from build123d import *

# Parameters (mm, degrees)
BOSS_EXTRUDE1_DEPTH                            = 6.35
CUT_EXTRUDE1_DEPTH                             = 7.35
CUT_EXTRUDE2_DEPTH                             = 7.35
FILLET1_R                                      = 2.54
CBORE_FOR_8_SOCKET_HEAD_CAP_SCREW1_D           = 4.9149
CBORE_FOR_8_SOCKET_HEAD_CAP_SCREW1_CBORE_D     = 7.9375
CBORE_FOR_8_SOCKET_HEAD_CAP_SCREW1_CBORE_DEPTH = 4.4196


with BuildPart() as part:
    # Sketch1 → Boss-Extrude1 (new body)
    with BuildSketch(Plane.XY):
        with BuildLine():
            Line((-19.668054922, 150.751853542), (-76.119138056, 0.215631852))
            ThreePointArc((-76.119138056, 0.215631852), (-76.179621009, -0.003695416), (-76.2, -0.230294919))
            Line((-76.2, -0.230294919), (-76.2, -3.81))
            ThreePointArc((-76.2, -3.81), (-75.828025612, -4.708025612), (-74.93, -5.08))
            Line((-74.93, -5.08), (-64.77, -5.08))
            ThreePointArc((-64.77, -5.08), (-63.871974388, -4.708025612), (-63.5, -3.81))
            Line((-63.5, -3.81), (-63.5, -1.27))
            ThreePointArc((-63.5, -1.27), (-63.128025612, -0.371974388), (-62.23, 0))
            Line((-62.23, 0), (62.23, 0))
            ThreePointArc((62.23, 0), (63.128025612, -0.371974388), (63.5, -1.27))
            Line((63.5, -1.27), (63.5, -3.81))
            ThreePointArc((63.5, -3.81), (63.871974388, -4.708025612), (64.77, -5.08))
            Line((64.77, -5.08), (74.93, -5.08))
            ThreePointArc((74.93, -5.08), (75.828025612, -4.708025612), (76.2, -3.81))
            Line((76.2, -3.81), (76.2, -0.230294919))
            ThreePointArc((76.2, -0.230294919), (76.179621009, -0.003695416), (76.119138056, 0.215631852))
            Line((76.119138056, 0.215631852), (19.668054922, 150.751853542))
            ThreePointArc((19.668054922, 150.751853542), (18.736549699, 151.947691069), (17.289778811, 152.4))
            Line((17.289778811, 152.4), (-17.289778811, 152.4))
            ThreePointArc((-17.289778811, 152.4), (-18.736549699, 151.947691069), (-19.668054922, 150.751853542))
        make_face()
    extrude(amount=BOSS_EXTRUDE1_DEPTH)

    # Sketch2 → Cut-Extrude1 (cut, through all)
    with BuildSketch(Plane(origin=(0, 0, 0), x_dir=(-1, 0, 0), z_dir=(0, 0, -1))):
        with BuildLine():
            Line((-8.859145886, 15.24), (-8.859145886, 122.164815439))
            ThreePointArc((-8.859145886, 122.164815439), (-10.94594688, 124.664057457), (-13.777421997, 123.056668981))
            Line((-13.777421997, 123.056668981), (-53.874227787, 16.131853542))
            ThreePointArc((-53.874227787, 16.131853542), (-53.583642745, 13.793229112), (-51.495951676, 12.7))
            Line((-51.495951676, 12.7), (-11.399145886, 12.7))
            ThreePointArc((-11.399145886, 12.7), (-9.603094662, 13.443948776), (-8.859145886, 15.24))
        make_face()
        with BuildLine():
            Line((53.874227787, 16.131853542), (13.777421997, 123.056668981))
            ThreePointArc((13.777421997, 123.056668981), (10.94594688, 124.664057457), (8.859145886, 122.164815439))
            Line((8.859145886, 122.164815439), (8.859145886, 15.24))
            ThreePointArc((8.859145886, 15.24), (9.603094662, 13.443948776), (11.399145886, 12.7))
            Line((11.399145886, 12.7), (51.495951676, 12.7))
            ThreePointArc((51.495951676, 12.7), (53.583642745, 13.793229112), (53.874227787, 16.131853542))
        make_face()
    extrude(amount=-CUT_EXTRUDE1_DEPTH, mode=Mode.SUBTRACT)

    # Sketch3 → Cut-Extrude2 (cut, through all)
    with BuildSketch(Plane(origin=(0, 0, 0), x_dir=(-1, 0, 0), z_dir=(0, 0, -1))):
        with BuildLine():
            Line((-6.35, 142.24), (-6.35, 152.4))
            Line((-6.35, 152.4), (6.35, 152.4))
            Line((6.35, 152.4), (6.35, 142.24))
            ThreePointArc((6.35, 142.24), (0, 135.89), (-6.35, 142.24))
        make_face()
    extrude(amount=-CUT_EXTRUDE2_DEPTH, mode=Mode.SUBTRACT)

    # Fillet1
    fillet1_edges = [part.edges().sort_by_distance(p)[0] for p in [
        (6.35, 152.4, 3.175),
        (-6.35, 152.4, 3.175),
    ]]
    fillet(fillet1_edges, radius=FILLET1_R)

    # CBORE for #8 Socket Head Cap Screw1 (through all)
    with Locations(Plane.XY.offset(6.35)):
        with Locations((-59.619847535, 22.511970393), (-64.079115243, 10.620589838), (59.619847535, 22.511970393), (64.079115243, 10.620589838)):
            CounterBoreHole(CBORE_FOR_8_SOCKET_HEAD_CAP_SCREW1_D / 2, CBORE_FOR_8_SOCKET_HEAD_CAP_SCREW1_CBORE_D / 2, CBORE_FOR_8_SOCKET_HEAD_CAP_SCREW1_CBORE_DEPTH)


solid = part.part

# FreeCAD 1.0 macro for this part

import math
import FreeCAD as App
import Part
import Sketcher
Q = App.Units.Quantity


def edges_at(feature, points):
    """Names of the edges that pass closest to the given points."""
    edges = feature.Shape.Edges
    near = lambda p: min(range(len(edges)), key=lambda i: edges[i].distToShape(Part.Vertex(*p))[0])
    return sorted({f"Edge{near(p) + 1}" for p in points})

doc = App.newDocument("Part")
body = doc.addObject("PartDesign::Body", "Body")

# Sketch on XY plane
sketch1 = body.newObject("Sketcher::SketchObject", "Sketch")
sketch1.AttachmentSupport = (doc.getObject("XY_Plane"), [""])
sketch1.MapMode = "FlatFace"
sketch1.addGeometry([
    Part.LineSegment(App.Vector(-19.67, 150.75, 0), App.Vector(-76.12, 0.22, 0)),  # 0
    Part.ArcOfCircle(Part.Circle(App.Vector(-74.93, -0.23, 0), App.Vector(0, 0, 1), 1.27), math.radians(159), math.radians(180)),  # 1
    Part.LineSegment(App.Vector(-76.2, -0.23, 0), App.Vector(-76.2, -3.81, 0)),  # 2
    Part.ArcOfCircle(Part.Circle(App.Vector(-74.93, -3.81, 0), App.Vector(0, 0, 1), 1.27), math.radians(180), math.radians(270)),  # 3
    Part.LineSegment(App.Vector(-74.93, -5.08, 0), App.Vector(-64.77, -5.08, 0)),  # 4
    Part.ArcOfCircle(Part.Circle(App.Vector(-64.77, -3.81, 0), App.Vector(0, 0, 1), 1.27), math.radians(-90), math.radians(0)),  # 5
    Part.LineSegment(App.Vector(-63.5, -3.81, 0), App.Vector(-63.5, -1.27, 0)),  # 6
    Part.ArcOfCircle(Part.Circle(App.Vector(-62.23, -1.27, 0), App.Vector(0, 0, 1), 1.27), math.radians(90), math.radians(180)),  # 7
    Part.LineSegment(App.Vector(-62.23, 0, 0), App.Vector(62.23, 0, 0)),  # 8
    Part.ArcOfCircle(Part.Circle(App.Vector(62.23, -1.27, 0), App.Vector(0, 0, 1), 1.27), math.radians(0), math.radians(90)),  # 9
    Part.LineSegment(App.Vector(63.5, -1.27, 0), App.Vector(63.5, -3.81, 0)),  # 10
    Part.ArcOfCircle(Part.Circle(App.Vector(64.77, -3.81, 0), App.Vector(0, 0, 1), 1.27), math.radians(180), math.radians(270)),  # 11
    Part.LineSegment(App.Vector(64.77, -5.08, 0), App.Vector(74.93, -5.08, 0)),  # 12
    Part.ArcOfCircle(Part.Circle(App.Vector(74.93, -3.81, 0), App.Vector(0, 0, 1), 1.27), math.radians(-90), math.radians(0)),  # 13
    Part.LineSegment(App.Vector(76.2, -3.81, 0), App.Vector(76.2, -0.23, 0)),  # 14
    Part.ArcOfCircle(Part.Circle(App.Vector(74.93, -0.23, 0), App.Vector(0, 0, 1), 1.27), math.radians(0), math.radians(21)),  # 15
    Part.LineSegment(App.Vector(76.12, 0.22, 0), App.Vector(19.67, 150.75, 0)),  # 16
    Part.ArcOfCircle(Part.Circle(App.Vector(17.29, 149.86, 0), App.Vector(0, 0, 1), 2.54), math.radians(21), math.radians(90)),  # 17
    Part.LineSegment(App.Vector(17.29, 152.4, 0), App.Vector(-17.29, 152.4, 0)),  # 18
    Part.ArcOfCircle(Part.Circle(App.Vector(-17.29, 149.86, 0), App.Vector(0, 0, 1), 2.54), math.radians(90), math.radians(159)),  # 19
], False)
sketch1.addConstraint([
    Sketcher.Constraint("Tangent", 0, 2, 1, 1),
    Sketcher.Constraint("Tangent", 1, 2, 2, 1),
    Sketcher.Constraint("Tangent", 2, 2, 3, 1),
    Sketcher.Constraint("Tangent", 3, 2, 4, 1),
    Sketcher.Constraint("Tangent", 4, 2, 5, 1),
    Sketcher.Constraint("Tangent", 5, 2, 6, 1),
    Sketcher.Constraint("Tangent", 6, 2, 7, 2),
    Sketcher.Constraint("Tangent", 7, 1, 8, 1),
    Sketcher.Constraint("Tangent", 8, 2, 9, 2),
    Sketcher.Constraint("Tangent", 9, 1, 10, 1),
    Sketcher.Constraint("Tangent", 10, 2, 11, 1),
    Sketcher.Constraint("Tangent", 11, 2, 12, 1),
    Sketcher.Constraint("Tangent", 12, 2, 13, 1),
    Sketcher.Constraint("Tangent", 13, 2, 14, 1),
    Sketcher.Constraint("Tangent", 14, 2, 15, 1),
    Sketcher.Constraint("Tangent", 15, 2, 16, 1),
    Sketcher.Constraint("Tangent", 16, 2, 17, 1),
    Sketcher.Constraint("Tangent", 17, 2, 18, 1),
    Sketcher.Constraint("Tangent", 18, 2, 19, 1),
    Sketcher.Constraint("Tangent", 19, 2, 0, 1),
    Sketcher.Constraint("Vertical", 2),
    Sketcher.Constraint("Horizontal", 4),
    Sketcher.Constraint("Vertical", 6),
    Sketcher.Constraint("Horizontal", 8),
    Sketcher.Constraint("Vertical", 10),
    Sketcher.Constraint("Horizontal", 12),
    Sketcher.Constraint("Vertical", 14),
    Sketcher.Constraint("Horizontal", 18),
    Sketcher.Constraint("Equal", 1, 3),
    Sketcher.Constraint("Equal", 3, 5),
    Sketcher.Constraint("Equal", 5, 7),
    Sketcher.Constraint("Equal", 7, 9),
    Sketcher.Constraint("Equal", 9, 11),
    Sketcher.Constraint("Equal", 11, 13),
    Sketcher.Constraint("Equal", 13, 15),
    Sketcher.Constraint("Equal", 17, 19),
    Sketcher.Constraint("Symmetric", 7, 1, 8, 2, -1, 1),
    Sketcher.Constraint("Symmetric", 3, 3, 13, 3, -2),
    Sketcher.Constraint("Horizontal", 1, 3, 15, 3),
    Sketcher.Constraint("Horizontal", 0, 2, 15, 2),
    Sketcher.Constraint("Radius", 17, Q("0.1 in")),
    Sketcher.Constraint("Radius", 1, Q("0.05 in")),
    Sketcher.Constraint("DistanceX", 4, 1, 4, 2, Q("0.4 in")),
    Sketcher.Constraint("DistanceX", 8, 1, 8, 2, Q("4.9 in")),
    Sketcher.Constraint("DistanceY", 6, 1, 6, 2, Q("0.1 in")),
    Sketcher.Constraint("DistanceY", -1, 1, 17, 2, Q("6 in")),
    Sketcher.Constraint("DistanceX", 18, 2, 18, 1, Q("1.3613999 in")),
    Sketcher.Constraint("DistanceY", 2, 2, 2, 1, 3.579705),
])
pad1 = body.newObject("PartDesign::Pad", "Pad")
pad1.Profile = sketch1
pad1.Length = Q("0.25 in")

# Sketch on XY plane
sketch2 = body.newObject("Sketcher::SketchObject", "Sketch001")
sketch2.AttachmentSupport = (doc.getObject("XY_Plane"), [""])
sketch2.MapMode = "FlatFace"
sketch2.addGeometry([
    Part.LineSegment(App.Vector(8.9, 15.2, 0), App.Vector(8.9, 122.2, 0)),  # 0
    Part.ArcOfCircle(Part.Circle(App.Vector(11.4, 122.2, 0), App.Vector(0, 0, 1), 2.5), math.radians(21), math.radians(180)),  # 1
    Part.LineSegment(App.Vector(13.8, 123.1, 0), App.Vector(53.9, 16.1, 0)),  # 2
    Part.ArcOfCircle(Part.Circle(App.Vector(51.5, 15.2, 0), App.Vector(0, 0, 1), 2.5), math.radians(-90), math.radians(21)),  # 3
    Part.LineSegment(App.Vector(51.5, 12.7, 0), App.Vector(11.4, 12.7, 0)),  # 4
    Part.ArcOfCircle(Part.Circle(App.Vector(11.4, 15.2, 0), App.Vector(0, 0, 1), 2.5), math.radians(-180), math.radians(-90)),  # 5
    Part.LineSegment(App.Vector(-53.9, 16.1, 0), App.Vector(-13.8, 123.1, 0)),  # 6
    Part.ArcOfCircle(Part.Circle(App.Vector(-11.4, 122.2, 0), App.Vector(0, 0, 1), 2.5), math.radians(0), math.radians(159)),  # 7
    Part.LineSegment(App.Vector(-8.9, 122.2, 0), App.Vector(-8.9, 15.2, 0)),  # 8
    Part.ArcOfCircle(Part.Circle(App.Vector(-11.4, 15.2, 0), App.Vector(0, 0, 1), 2.5), math.radians(-90), math.radians(0)),  # 9
    Part.LineSegment(App.Vector(-11.4, 12.7, 0), App.Vector(-51.5, 12.7, 0)),  # 10
    Part.ArcOfCircle(Part.Circle(App.Vector(-51.5, 15.2, 0), App.Vector(0, 0, 1), 2.5), math.radians(159), math.radians(270)),  # 11
], False)
sketch2.addConstraint([
    Sketcher.Constraint("Tangent", 0, 2, 1, 2),
    Sketcher.Constraint("Tangent", 1, 1, 2, 1),
    Sketcher.Constraint("Tangent", 2, 2, 3, 2),
    Sketcher.Constraint("Tangent", 3, 1, 4, 1),
    Sketcher.Constraint("Tangent", 4, 2, 5, 2),
    Sketcher.Constraint("Tangent", 5, 1, 0, 1),
    Sketcher.Constraint("Tangent", 6, 2, 7, 2),
    Sketcher.Constraint("Tangent", 7, 1, 8, 1),
    Sketcher.Constraint("Tangent", 8, 2, 9, 2),
    Sketcher.Constraint("Tangent", 9, 1, 10, 1),
    Sketcher.Constraint("Tangent", 10, 2, 11, 2),
    Sketcher.Constraint("Tangent", 11, 1, 6, 1),
    Sketcher.Constraint("Vertical", 0),
    Sketcher.Constraint("Horizontal", 4),
    Sketcher.Constraint("Vertical", 8),
    Sketcher.Constraint("Horizontal", 10),
    Sketcher.Constraint("Equal", 1, 3),
    Sketcher.Constraint("Equal", 3, 5),
    Sketcher.Constraint("Equal", 5, 7),
    Sketcher.Constraint("Equal", 7, 9),
    Sketcher.Constraint("Equal", 9, 11),
    Sketcher.Constraint("Symmetric", 1, 3, 7, 3, -2),
    Sketcher.Constraint("Symmetric", 3, 3, 11, 3, -2),
    Sketcher.Constraint("Radius", 1, Q("0.1 in")),
    Sketcher.Constraint("DistanceY", -1, 1, 3, 3, Q("0.6 in")),
    Sketcher.Constraint("DistanceX", 4, 2, 4, 1, 40.096806),
    Sketcher.Constraint("DistanceY", 0, 1, 0, 2, 106.924815),
    Sketcher.Constraint("DistanceX", -1, 1, 3, 3, 51.495952),
])
pocket1 = body.newObject("PartDesign::Pocket", "Pocket")
pocket1.Profile = sketch2
pocket1.Type = "ThroughAll"
pocket1.Reversed = True

# Sketch on XY plane
sketch3 = body.newObject("Sketcher::SketchObject", "Sketch002")
sketch3.AttachmentSupport = (doc.getObject("XY_Plane"), [""])
sketch3.MapMode = "FlatFace"
sketch3.addGeometry([
    Part.LineSegment(App.Vector(6, 152, 0), App.Vector(6, 142, 0)),
    Part.ArcOfCircle(Part.Circle(App.Vector(0, 142, 0), App.Vector(0, 0, 1), 6), math.radians(180), math.radians(360)),
    Part.LineSegment(App.Vector(-6, 142, 0), App.Vector(-6, 152, 0)),
    Part.LineSegment(App.Vector(-6, 152, 0), App.Vector(6, 152, 0)),
], False)
sketch3.addConstraint([
    Sketcher.Constraint("Tangent", 0, 2, 1, 2),
    Sketcher.Constraint("Tangent", 1, 1, 2, 1),
    Sketcher.Constraint("Coincident", 2, 2, 3, 1),
    Sketcher.Constraint("Coincident", 3, 2, 0, 1),
    Sketcher.Constraint("Vertical", 0),
    Sketcher.Constraint("Vertical", 2),
    Sketcher.Constraint("Horizontal", 3),
    Sketcher.Constraint("PointOnObject", 1, 3, -2),
    Sketcher.Constraint("Radius", 1, Q("0.25 in")),
    Sketcher.Constraint("DistanceY", 0, 2, 0, 1, Q("0.4 in")),
    Sketcher.Constraint("DistanceY", -1, 1, 2, 2, Q("6 in")),
])
pocket2 = body.newObject("PartDesign::Pocket", "Pocket001")
pocket2.Profile = sketch3
pocket2.Type = "ThroughAll"
pocket2.Reversed = True
doc.recompute()

fillet = body.newObject("PartDesign::Fillet", "Fillet")
fillet.Base = (pocket2, edges_at(pocket2, [(6.35, 152.4, 3.175), (-6.35, 152.4, 3.175)]))
fillet.Radius = Q("0.1 in")

# Sketch on XY plane
sketch4 = body.newObject("Sketcher::SketchObject", "Sketch003")
sketch4.AttachmentSupport = (doc.getObject("XY_Plane"), [""])
sketch4.MapMode = "FlatFace"
sketch4.AttachmentOffset = App.Placement(App.Vector(0, 0, 0.25 * 25.4), App.Rotation())
sketch4.addGeometry([
    Part.Circle(App.Vector(-59.6, 22.5, 0), App.Vector(0, 0, 1), 2.5),
    Part.Circle(App.Vector(-64.1, 10.6, 0), App.Vector(0, 0, 1), 2.5),
    Part.Circle(App.Vector(59.6, 22.5, 0), App.Vector(0, 0, 1), 2.5),
    Part.Circle(App.Vector(64.1, 10.6, 0), App.Vector(0, 0, 1), 2.5),
], False)
sketch4.addConstraint([
    Sketcher.Constraint("Equal", 0, 1),
    Sketcher.Constraint("Equal", 1, 2),
    Sketcher.Constraint("Equal", 2, 3),
    Sketcher.Constraint("Symmetric", 0, 3, 2, 3, -2),
    Sketcher.Constraint("Symmetric", 1, 3, 3, 3, -2),
    Sketcher.Constraint("Diameter", 0, Q("0.1935 in")),
    Sketcher.Constraint("DistanceX", 1, 3, -1, 1, Q("2.5227998 in")),
    Sketcher.Constraint("DistanceY", -1, 1, 0, 3, 22.51197),
    Sketcher.Constraint("DistanceY", -1, 1, 1, 3, 10.62059),
    Sketcher.Constraint("DistanceX", 0, 3, -1, 1, 59.619848),
])
doc.recompute()
hole = body.newObject("PartDesign::Hole", "Hole")
hole.Profile = sketch4
hole.ThreadType = "None"
hole.Diameter = Q("0.1935 in")
hole.DepthType = "ThroughAll"
hole.HoleCutType = "Counterbore"
hole.HoleCutDiameter = Q("0.3125 in")
hole.HoleCutDepth = Q("0.174 in")

doc.recompute()
